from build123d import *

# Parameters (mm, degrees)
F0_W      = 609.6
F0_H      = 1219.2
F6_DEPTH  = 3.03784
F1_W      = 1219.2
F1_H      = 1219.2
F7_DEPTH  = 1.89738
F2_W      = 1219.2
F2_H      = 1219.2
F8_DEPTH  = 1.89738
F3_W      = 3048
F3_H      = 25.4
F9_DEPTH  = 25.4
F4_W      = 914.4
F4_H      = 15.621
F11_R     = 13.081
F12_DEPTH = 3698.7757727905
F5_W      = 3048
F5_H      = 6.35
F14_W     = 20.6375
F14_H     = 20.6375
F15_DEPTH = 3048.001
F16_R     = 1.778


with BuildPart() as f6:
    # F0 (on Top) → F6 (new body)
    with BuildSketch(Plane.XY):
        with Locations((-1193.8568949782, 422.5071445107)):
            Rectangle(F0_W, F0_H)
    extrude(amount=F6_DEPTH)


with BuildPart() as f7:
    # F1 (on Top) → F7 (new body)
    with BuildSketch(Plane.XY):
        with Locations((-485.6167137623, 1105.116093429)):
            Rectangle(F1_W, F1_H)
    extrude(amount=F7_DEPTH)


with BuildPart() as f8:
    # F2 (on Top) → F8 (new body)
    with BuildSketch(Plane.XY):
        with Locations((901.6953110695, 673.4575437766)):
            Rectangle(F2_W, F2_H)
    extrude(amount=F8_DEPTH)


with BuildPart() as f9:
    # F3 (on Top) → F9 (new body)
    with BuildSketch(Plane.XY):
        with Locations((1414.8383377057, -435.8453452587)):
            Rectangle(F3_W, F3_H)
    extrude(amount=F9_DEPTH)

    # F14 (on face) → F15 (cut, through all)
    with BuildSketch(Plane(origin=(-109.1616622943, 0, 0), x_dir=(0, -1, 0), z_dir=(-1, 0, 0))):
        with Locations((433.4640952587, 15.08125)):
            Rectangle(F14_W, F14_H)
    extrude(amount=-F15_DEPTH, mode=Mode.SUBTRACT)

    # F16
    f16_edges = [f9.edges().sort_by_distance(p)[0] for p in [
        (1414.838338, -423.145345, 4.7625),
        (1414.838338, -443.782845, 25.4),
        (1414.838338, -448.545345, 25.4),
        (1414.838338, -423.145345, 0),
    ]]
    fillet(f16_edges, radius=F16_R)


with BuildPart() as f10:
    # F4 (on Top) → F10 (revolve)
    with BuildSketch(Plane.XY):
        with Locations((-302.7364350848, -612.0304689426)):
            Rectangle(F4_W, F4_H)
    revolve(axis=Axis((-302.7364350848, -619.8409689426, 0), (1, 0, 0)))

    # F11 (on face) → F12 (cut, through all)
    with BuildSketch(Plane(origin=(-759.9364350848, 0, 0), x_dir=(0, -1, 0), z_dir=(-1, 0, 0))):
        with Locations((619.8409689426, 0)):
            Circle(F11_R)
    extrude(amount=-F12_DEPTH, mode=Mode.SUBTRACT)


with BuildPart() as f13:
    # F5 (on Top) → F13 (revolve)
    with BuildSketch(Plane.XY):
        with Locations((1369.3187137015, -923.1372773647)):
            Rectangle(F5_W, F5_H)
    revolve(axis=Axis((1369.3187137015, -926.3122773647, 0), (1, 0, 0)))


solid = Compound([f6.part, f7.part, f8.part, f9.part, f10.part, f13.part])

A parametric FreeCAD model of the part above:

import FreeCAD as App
import Part
import Sketcher
from FreeCAD import Vector
Q = App.Units.Quantity


def edges_at(feature, points):
    """Names of the edges that pass closest to the given points."""
    edges = feature.Shape.Edges
    near = lambda p: min(range(len(edges)), key=lambda i: edges[i].distToShape(Part.Vertex(*p))[0])
    return sorted({f"Edge{near(p) + 1}" for p in points})


def add_polygon(sketch, points):
    """Adds a closed chain of lines whose ends are joined by coincident constraints."""
    first, n = sketch.GeometryCount, len(points)
    for a, b in zip(points, points[1:] + points[:1]):
        sketch.addGeometry(Part.LineSegment(App.Vector(*a, 0), App.Vector(*b, 0)), False)
    for i in range(n):
        sketch.addConstraint(Sketcher.Constraint("Coincident", first + i, 2, first + (i + 1) % n, 1))

doc = App.newDocument("Part")
body = doc.addObject("PartDesign::Body", "Body")

sketch1 = body.newObject("Sketcher::SketchObject", "Sketch")
sketch1.AttachmentSupport = (doc.getObject("XY_Plane"), [""])
sketch1.MapMode = "FlatFace"
add_polygon(sketch1, [(-1498.656895, 1032.107145), (-1498.656895, -187.092855), (-889.056895, -187.092855), (-889.056895, 1032.107145)])
sketch1.addConstraint(Sketcher.Constraint("Vertical", 0))
sketch1.addConstraint(Sketcher.Constraint("Horizontal", 1))
sketch1.addConstraint(Sketcher.Constraint("Vertical", 2))
sketch1.addConstraint(Sketcher.Constraint("Horizontal", 3))
sketch1.addConstraint(Sketcher.Constraint("DistanceX", 1, 1, 1, 2, Q("24 in")))
sketch1.addConstraint(Sketcher.Constraint("DistanceY", 0, 2, 0, 1, Q("48 in")))
sketch1.addConstraint(Sketcher.Constraint("DistanceX", 0, 2, -1, 1, 1498.656895))
sketch1.addConstraint(Sketcher.Constraint("DistanceY", 0, 2, -1, 1, 187.092855))
pad1 = body.newObject("PartDesign::Pad", "Pad")
pad1.Profile = sketch1
pad1.Length = Q("0.1196 in")
body2 = doc.addObject("PartDesign::Body", "Body001")

sketch2 = body2.newObject("Sketcher::SketchObject", "Sketch001")
sketch2.AttachmentSupport = (doc.getObject("XY_Plane001"), [""])
sketch2.MapMode = "FlatFace"
add_polygon(sketch2, [(-1095.216714, 1714.716093), (-1095.216714, 495.516093), (123.983286, 495.516093), (123.983286, 1714.716093)])
sketch2.addConstraint(Sketcher.Constraint("Vertical", 0))
sketch2.addConstraint(Sketcher.Constraint("Horizontal", 1))
sketch2.addConstraint(Sketcher.Constraint("Vertical", 2))
sketch2.addConstraint(Sketcher.Constraint("Horizontal", 3))
sketch2.addConstraint(Sketcher.Constraint("Equal", 3, 0))
sketch2.addConstraint(Sketcher.Constraint("DistanceX", 1, 1, 1, 2, Q("48 in")))
sketch2.addConstraint(Sketcher.Constraint("DistanceX", 0, 2, -1, 1, 1095.216714))
sketch2.addConstraint(Sketcher.Constraint("DistanceY", -1, 1, 0, 2, 495.516093))
pad2 = body2.newObject("PartDesign::Pad", "Pad001")
pad2.Profile = sketch2
pad2.Length = Q("0.0747 in")
body3 = doc.addObject("PartDesign::Body", "Body002")

sketch3 = body3.newObject("Sketcher::SketchObject", "Sketch002")
sketch3.AttachmentSupport = (doc.getObject("XY_Plane002"), [""])
sketch3.MapMode = "FlatFace"
add_polygon(sketch3, [(292.095311, 1283.057544), (292.095311, 63.857544), (1511.295311, 63.857544), (1511.295311, 1283.057544)])
sketch3.addConstraint(Sketcher.Constraint("Vertical", 0))
sketch3.addConstraint(Sketcher.Constraint("Horizontal", 1))
sketch3.addConstraint(Sketcher.Constraint("Vertical", 2))
sketch3.addConstraint(Sketcher.Constraint("Horizontal", 3))
sketch3.addConstraint(Sketcher.Constraint("Equal", 3, 0))
sketch3.addConstraint(Sketcher.Constraint("DistanceX", 1, 1, 1, 2, Q("48 in")))
sketch3.addConstraint(Sketcher.Constraint("DistanceX", -1, 1, 0, 2, 292.095311))
sketch3.addConstraint(Sketcher.Constraint("DistanceY", -1, 1, 0, 2, 63.857544))
pad3 = body3.newObject("PartDesign::Pad", "Pad002")
pad3.Profile = sketch3
pad3.Length = Q("0.0747 in")
body4 = doc.addObject("PartDesign::Body", "Body003")

sketch4 = body4.newObject("Sketcher::SketchObject", "Sketch003")
sketch4.AttachmentSupport = (doc.getObject("XY_Plane003"), [""])
sketch4.MapMode = "FlatFace"
add_polygon(sketch4, [(-109.161662, -423.145345), (-109.161662, -448.545345), (2938.838338, -448.545345), (2938.838338, -423.145345)])
sketch4.addConstraint(Sketcher.Constraint("Vertical", 0))
sketch4.addConstraint(Sketcher.Constraint("Horizontal", 1))
sketch4.addConstraint(Sketcher.Constraint("Vertical", 2))
sketch4.addConstraint(Sketcher.Constraint("Horizontal", 3))
sketch4.addConstraint(Sketcher.Constraint("DistanceX", 1, 1, 1, 2, Q("120 in")))
sketch4.addConstraint(Sketcher.Constraint("DistanceY", 0, 2, 0, 1, Q("1 in")))
sketch4.addConstraint(Sketcher.Constraint("DistanceX", 0, 2, -1, 1, 109.161662))
sketch4.addConstraint(Sketcher.Constraint("DistanceY", 0, 2, -1, 1, 448.545345))
pad4 = body4.newObject("PartDesign::Pad", "Pad003")
pad4.Profile = sketch4
pad4.Length = Q("1 in")

sketch5 = body4.newObject("Sketcher::SketchObject", "Sketch004")
sketch5.AttachmentSupport = (doc.getObject("YZ_Plane003"), [""])
sketch5.MapMode = "FlatFace"
sketch5.AttachmentOffset = App.Placement(Vector(0, 0, -109.161662), App.Rotation())
add_polygon(sketch5, [(-423.145345, 25.4), (-423.145345, 4.7625), (-443.782845, 4.7625), (-443.782845, 25.4)])
sketch5.addConstraint(Sketcher.Constraint("Vertical", 0))
sketch5.addConstraint(Sketcher.Constraint("Horizontal", 1))
sketch5.addConstraint(Sketcher.Constraint("Vertical", 2))
sketch5.addConstraint(Sketcher.Constraint("Horizontal", 3))
sketch5.addConstraint(Sketcher.Constraint("Equal", 3, 0))
sketch5.addConstraint(Sketcher.Constraint("DistanceY", -1, 1, 2, 2, Q("1 in")))
sketch5.addConstraint(Sketcher.Constraint("DistanceX", 1, 2, 1, 1, Q("0.8125 in")))
sketch5.addConstraint(Sketcher.Constraint("DistanceX", 0, 2, -1, 1, 423.145345))
pocket1 = body4.newObject("PartDesign::Pocket", "Pocket")
pocket1.Profile = sketch5
pocket1.Type = "ThroughAll"
pocket1.Reversed = True
doc.recompute()

fillet = body4.newObject("PartDesign::Fillet", "Fillet")
fillet.Base = (pocket1, edges_at(pocket1, [
    (1414.838, -423.145, 4.763),
    (1414.838, -443.783, 25.4),
    (1414.838, -448.545, 25.4),
    (1414.838, -423.145, 0),
]))
fillet.Radius = Q("0.07 in")
body5 = doc.addObject("PartDesign::Body", "Body004")

sketch6 = body5.newObject("Sketcher::SketchObject", "Sketch005")
sketch6.AttachmentSupport = (doc.getObject("XY_Plane004"), [""])
sketch6.MapMode = "FlatFace"
add_polygon(sketch6, [(-759.936435, -604.219969), (-759.936435, -619.840969), (154.463565, -619.840969), (154.463565, -604.219969)])
sketch6.addGeometry(Part.LineSegment(Vector(-759.936435, -619.840969, 0), Vector(154.463565, -619.840969, 0)), True)
sketch6.addConstraint(Sketcher.Constraint("Vertical", 0))
sketch6.addConstraint(Sketcher.Constraint("Horizontal", 1))
sketch6.addConstraint(Sketcher.Constraint("Vertical", 2))
sketch6.addConstraint(Sketcher.Constraint("Horizontal", 3))
sketch6.addConstraint(Sketcher.Constraint("Horizontal", 4))
sketch6.addConstraint(Sketcher.Constraint("Coincident", 4, 1, 0, 2))
sketch6.addConstraint(Sketcher.Constraint("Vertical", 2, 2, 4, 2))
sketch6.addConstraint(Sketcher.Constraint("DistanceX", 1, 1, 1, 2, Q("36 in")))
sketch6.addConstraint(Sketcher.Constraint("DistanceY", 0, 2, 0, 1, Q("0.615 in")))
sketch6.addConstraint(Sketcher.Constraint("DistanceY", 0, 2, -1, 1, 619.840969))
sketch6.addConstraint(Sketcher.Constraint("DistanceX", 0, 2, -1, 1, 759.936435))
revolution = body5.newObject("PartDesign::Revolution", "Revolution")
revolution.Profile = sketch6
revolution.ReferenceAxis = (sketch6, ["Axis0"])
revolution.Angle = 360

sketch7 = body5.newObject("Sketcher::SketchObject", "Sketch006")
sketch7.AttachmentSupport = (doc.getObject("YZ_Plane004"), [""])
sketch7.MapMode = "FlatFace"
sketch7.AttachmentOffset = App.Placement(Vector(0, 0, -759.936435), App.Rotation())
sketch7.addGeometry(Part.Circle(Vector(-619.840969, 0, 0), Vector(0, 0, 1), 13.081), False)
sketch7.addConstraint(Sketcher.Constraint("PointOnObject", 0, 3, -1))
sketch7.addConstraint(Sketcher.Constraint("Diameter", 0, Q("1.03 in")))
sketch7.addConstraint(Sketcher.Constraint("DistanceX", 0, 3, -1, 1, 619.840969))
pocket2 = body5.newObject("PartDesign::Pocket", "Pocket001")
pocket2.Profile = sketch7
pocket2.Type = "ThroughAll"
pocket2.Reversed = True
body6 = doc.addObject("PartDesign::Body", "Body005")

sketch8 = body6.newObject("Sketcher::SketchObject", "Sketch007")
sketch8.AttachmentSupport = (doc.getObject("XY_Plane005"), [""])
sketch8.MapMode = "FlatFace"
add_polygon(sketch8, [(-154.681286, -919.962277), (-154.681286, -926.312277), (2893.318714, -926.312277), (2893.318714, -919.962277)])
sketch8.addGeometry(Part.LineSegment(Vector(-154.681286, -926.312277, 0), Vector(2893.318714, -926.312277, 0)), True)
sketch8.addConstraint(Sketcher.Constraint("Vertical", 0))
sketch8.addConstraint(Sketcher.Constraint("Horizontal", 1))
sketch8.addConstraint(Sketcher.Constraint("Vertical", 2))
sketch8.addConstraint(Sketcher.Constraint("Horizontal", 3))
sketch8.addConstraint(Sketcher.Constraint("Horizontal", 4))
sketch8.addConstraint(Sketcher.Constraint("Coincident", 4, 1, 0, 2))
sketch8.addConstraint(Sketcher.Constraint("Vertical", 2, 2, 4, 2))
sketch8.addConstraint(Sketcher.Constraint("DistanceX", 1, 1, 1, 2, Q("120 in")))
sketch8.addConstraint(Sketcher.Constraint("DistanceY", 0, 2, 0, 1, Q("0.25 in")))
sketch8.addConstraint(Sketcher.Constraint("DistanceX", 0, 2, -1, 1, 154.681286))
sketch8.addConstraint(Sketcher.Constraint("DistanceY", 0, 2, -1, 1, 926.312277))
revolution2 = body6.newObject("PartDesign::Revolution", "Revolution001")
revolution2.Profile = sketch8
revolution2.ReferenceAxis = (sketch8, ["Axis0"])
revolution2.Angle = 360

doc.recompute()
